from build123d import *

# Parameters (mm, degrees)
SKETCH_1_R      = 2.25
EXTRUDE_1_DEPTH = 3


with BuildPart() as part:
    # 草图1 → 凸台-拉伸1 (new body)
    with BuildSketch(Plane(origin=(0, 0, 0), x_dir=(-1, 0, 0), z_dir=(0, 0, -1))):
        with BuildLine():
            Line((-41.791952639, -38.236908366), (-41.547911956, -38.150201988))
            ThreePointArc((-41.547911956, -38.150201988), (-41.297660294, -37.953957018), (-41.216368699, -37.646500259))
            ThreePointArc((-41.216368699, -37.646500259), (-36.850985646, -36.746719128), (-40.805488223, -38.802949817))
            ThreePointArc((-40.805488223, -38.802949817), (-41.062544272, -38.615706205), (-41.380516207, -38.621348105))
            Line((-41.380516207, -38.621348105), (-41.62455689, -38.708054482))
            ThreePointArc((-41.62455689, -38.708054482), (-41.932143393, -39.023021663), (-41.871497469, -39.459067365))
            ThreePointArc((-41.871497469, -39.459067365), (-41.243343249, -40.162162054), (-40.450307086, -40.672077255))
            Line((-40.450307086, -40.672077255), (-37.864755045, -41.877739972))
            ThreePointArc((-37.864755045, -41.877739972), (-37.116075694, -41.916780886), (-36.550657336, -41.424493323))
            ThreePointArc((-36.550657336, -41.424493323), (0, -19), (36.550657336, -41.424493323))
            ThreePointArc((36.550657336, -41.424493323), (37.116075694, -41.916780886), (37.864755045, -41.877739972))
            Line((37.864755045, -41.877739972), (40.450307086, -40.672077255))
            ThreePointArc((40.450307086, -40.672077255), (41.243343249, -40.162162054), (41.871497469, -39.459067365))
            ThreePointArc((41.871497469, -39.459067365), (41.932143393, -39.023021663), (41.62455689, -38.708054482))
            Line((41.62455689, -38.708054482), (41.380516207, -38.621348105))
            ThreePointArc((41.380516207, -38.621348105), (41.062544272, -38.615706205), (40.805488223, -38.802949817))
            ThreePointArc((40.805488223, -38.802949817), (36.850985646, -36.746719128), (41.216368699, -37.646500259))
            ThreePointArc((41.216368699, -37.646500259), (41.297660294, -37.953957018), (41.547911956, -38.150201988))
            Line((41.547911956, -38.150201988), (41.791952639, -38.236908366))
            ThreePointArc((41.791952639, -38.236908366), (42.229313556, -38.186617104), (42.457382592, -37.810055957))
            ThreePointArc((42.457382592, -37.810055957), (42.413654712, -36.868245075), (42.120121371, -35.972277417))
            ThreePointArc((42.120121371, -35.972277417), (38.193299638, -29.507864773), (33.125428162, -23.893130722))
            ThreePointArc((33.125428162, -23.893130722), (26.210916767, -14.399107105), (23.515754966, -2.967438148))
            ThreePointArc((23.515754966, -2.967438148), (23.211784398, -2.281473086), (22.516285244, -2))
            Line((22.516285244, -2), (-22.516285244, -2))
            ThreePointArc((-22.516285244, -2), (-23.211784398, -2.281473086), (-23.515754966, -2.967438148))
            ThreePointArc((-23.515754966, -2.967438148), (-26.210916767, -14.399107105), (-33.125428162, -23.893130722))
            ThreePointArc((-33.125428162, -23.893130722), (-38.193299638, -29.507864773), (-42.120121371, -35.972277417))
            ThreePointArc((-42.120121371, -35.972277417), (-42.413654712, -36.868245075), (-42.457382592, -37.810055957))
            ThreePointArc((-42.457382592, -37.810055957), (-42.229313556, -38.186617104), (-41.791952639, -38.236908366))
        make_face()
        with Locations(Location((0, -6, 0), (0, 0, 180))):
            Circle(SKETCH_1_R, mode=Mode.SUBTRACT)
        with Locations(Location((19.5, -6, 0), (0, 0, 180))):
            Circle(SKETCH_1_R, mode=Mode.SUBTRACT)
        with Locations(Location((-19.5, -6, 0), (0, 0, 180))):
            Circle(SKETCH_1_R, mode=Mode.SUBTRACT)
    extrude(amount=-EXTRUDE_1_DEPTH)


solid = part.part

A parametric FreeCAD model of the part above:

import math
import FreeCAD as App
import Part
import Sketcher
from FreeCAD import Vector
Q = App.Units.Quantity

doc = App.newDocument("Part")
body = doc.addObject("PartDesign::Body", "Body")

sketch1 = doc.addObject("Sketcher::SketchObject", "Sketch")
body.addObject(sketch1)
sketch1.AttachmentSupport = (doc.XY_Plane, [""])
sketch1.MapMode = "FlatFace"
sketch1.addGeometry(Part.LineSegment(Vector(41.791953, -38.236908, 0), Vector(41.547912, -38.150202, 0)), False)
sketch1.addGeometry(Part.ArcOfCircle(Part.Circle(Vector(41.715308, -37.679056, 0), Vector(0, 0, 1), 0.5), math.radians(176.26676), math.radians(250.440141)), False)
sketch1.addGeometry(Part.ArcOfCircle(Part.Circle(Vector(38.971143, -37.5, 0), Vector(0, 0, 1), 2.25), math.radians(-3.733239), math.radians(324.61352)), False)
sketch1.addGeometry(Part.ArcOfCircle(Part.Circle(Vector(41.21312, -39.092494, 0), Vector(0, 0, 1), 0.5), math.radians(70.44014), math.radians(144.61352)), False)
sketch1.addGeometry(Part.LineSegment(Vector(41.380516, -38.621348, 0), Vector(41.624557, -38.708054, 0)), False)
sketch1.addGeometry(Part.ArcOfCircle(Part.Circle(Vector(41.457161, -39.179201, 0), Vector(0, 0, 1), 0.5), math.radians(-34.037372), math.radians(70.44014)), False)
sketch1.addGeometry(Part.ArcOfCircle(Part.Circle(Vector(38.971143, -37.5, 0), Vector(0, 0, 1), 3.5), math.radians(-65), math.radians(-34.037372)), False)
sketch1.addGeometry(Part.LineSegment(Vector(40.450307, -40.672077, 0), Vector(37.864755, -41.87774, 0)), False)
sketch1.addGeometry(Part.ArcOfCircle(Part.Circle(Vector(37.442137, -40.971432, 0), Vector(0, 0, 1), 1), math.radians(-153.059746), math.radians(-65)), False)
sketch1.addGeometry(Part.ArcOfCircle(Part.Circle(Vector(0, -60, 0), Vector(0, 0, 1), 41), math.radians(26.940254), math.radians(153.059746)), False)
sketch1.addGeometry(Part.ArcOfCircle(Part.Circle(Vector(-37.442137, -40.971432, 0), Vector(0, 0, 1), 1), math.radians(-115), math.radians(-26.940254)), False)
sketch1.addGeometry(Part.LineSegment(Vector(-37.864755, -41.87774, 0), Vector(-40.450307, -40.672077, 0)), False)
sketch1.addGeometry(Part.ArcOfCircle(Part.Circle(Vector(-38.971143, -37.5, 0), Vector(0, 0, 1), 3.5), math.radians(-145.962628), math.radians(-115)), False)
sketch1.addGeometry(Part.ArcOfCircle(Part.Circle(Vector(-41.457161, -39.179201, 0), Vector(0, 0, 1), 0.5), math.radians(109.55986), math.radians(214.037372)), False)
sketch1.addGeometry(Part.LineSegment(Vector(-41.624557, -38.708054, 0), Vector(-41.380516, -38.621348, 0)), False)
sketch1.addGeometry(Part.ArcOfCircle(Part.Circle(Vector(-41.21312, -39.092494, 0), Vector(0, 0, 1), 0.5), math.radians(35.38648), math.radians(109.55986)), False)
sketch1.addGeometry(Part.ArcOfCircle(Part.Circle(Vector(-38.971143, -37.5, 0), Vector(0, 0, 1), 2.25), math.radians(-144.61352), math.radians(183.733239)), False)
sketch1.addGeometry(Part.ArcOfCircle(Part.Circle(Vector(-41.715308, -37.679056, 0), Vector(0, 0, 1), 0.5), math.radians(-70.440141), math.radians(3.73324)), False)
sketch1.addGeometry(Part.LineSegment(Vector(-41.547912, -38.150202, 0), Vector(-41.791953, -38.236908, 0)), False)
sketch1.addGeometry(Part.ArcOfCircle(Part.Circle(Vector(-41.959348, -37.765762, 0), Vector(0, 0, 1), 0.5), math.radians(-174.917653), math.radians(-70.44014)), False)
sketch1.addGeometry(Part.ArcOfCircle(Part.Circle(Vector(-38.971143, -37.5, 0), Vector(0, 0, 1), 3.5), math.radians(154.119719), math.radians(185.082347)), False)
sketch1.addGeometry(Part.ArcOfCircle(Part.Circle(Vector(-5.940591, -53.524728, 0), Vector(0, 0, 1), 40.212522), math.radians(132.53412), math.radians(154.119719)), False)
sketch1.addGeometry(Part.ArcOfCircle(Part.Circle(Vector(-53.210784, -2, 0), Vector(0, 0, 1), 29.710784), math.radians(-47.46588), math.radians(-1.865987)), False)
sketch1.addGeometry(Part.ArcOfCircle(Part.Circle(Vector(-22.516285, -3, 0), Vector(0, 0, 1), 1), math.radians(90), math.radians(178.134013)), False)
sketch1.addGeometry(Part.LineSegment(Vector(-22.516285, -2, 0), Vector(22.516285, -2, 0)), False)
sketch1.addGeometry(Part.ArcOfCircle(Part.Circle(Vector(22.516285, -3, 0), Vector(0, 0, 1), 1), math.radians(1.865987), math.radians(90)), False)
sketch1.addGeometry(Part.ArcOfCircle(Part.Circle(Vector(53.210784, -2, 0), Vector(0, 0, 1), 29.710784), math.radians(-178.134013), math.radians(-132.53412)), False)
sketch1.addGeometry(Part.ArcOfCircle(Part.Circle(Vector(5.940591, -53.524728, 0), Vector(0, 0, 1), 40.212522), math.radians(25.880281), math.radians(47.46588)), False)
sketch1.addGeometry(Part.ArcOfCircle(Part.Circle(Vector(38.971143, -37.5, 0), Vector(0, 0, 1), 3.5), math.radians(-5.082347), math.radians(25.880281)), False)
sketch1.addGeometry(Part.ArcOfCircle(Part.Circle(Vector(41.959348, -37.765762, 0), Vector(0, 0, 1), 0.5), math.radians(-109.55986), math.radians(-5.082347)), False)
sketch1.addGeometry(Part.Circle(Vector(19.5, -6, 0), Vector(0, 0, 1), 2.25), False)
sketch1.addGeometry(Part.Circle(Vector(0, -6, 0), Vector(0, 0, 1), 2.25), False)
sketch1.addGeometry(Part.Circle(Vector(-19.5, -6, 0), Vector(0, 0, 1), 2.25), False)
sketch1.addConstraint(Sketcher.Constraint("Coincident", 0, 2, 1, 2))
sketch1.addConstraint(Sketcher.Constraint("Coincident", 1, 1, 2, 1))
sketch1.addConstraint(Sketcher.Constraint("Coincident", 2, 2, 3, 2))
sketch1.addConstraint(Sketcher.Constraint("Coincident", 3, 1, 4, 1))
sketch1.addConstraint(Sketcher.Constraint("Coincident", 4, 2, 5, 2))
sketch1.addConstraint(Sketcher.Constraint("Coincident", 5, 1, 6, 2))
sketch1.addConstraint(Sketcher.Constraint("Coincident", 6, 1, 7, 1))
sketch1.addConstraint(Sketcher.Constraint("Coincident", 7, 2, 8, 2))
sketch1.addConstraint(Sketcher.Constraint("Coincident", 8, 1, 9, 1))
sketch1.addConstraint(Sketcher.Constraint("Coincident", 9, 2, 10, 2))
sketch1.addConstraint(Sketcher.Constraint("Coincident", 10, 1, 11, 1))
sketch1.addConstraint(Sketcher.Constraint("Coincident", 11, 2, 12, 2))
sketch1.addConstraint(Sketcher.Constraint("Coincident", 12, 1, 13, 2))
sketch1.addConstraint(Sketcher.Constraint("Coincident", 13, 1, 14, 1))
sketch1.addConstraint(Sketcher.Constraint("Coincident", 14, 2, 15, 2))
sketch1.addConstraint(Sketcher.Constraint("Coincident", 15, 1, 16, 1))
sketch1.addConstraint(Sketcher.Constraint("Coincident", 16, 2, 17, 2))
sketch1.addConstraint(Sketcher.Constraint("Coincident", 17, 1, 18, 1))
sketch1.addConstraint(Sketcher.Constraint("Coincident", 18, 2, 19, 2))
sketch1.addConstraint(Sketcher.Constraint("Coincident", 19, 1, 20, 2))
sketch1.addConstraint(Sketcher.Constraint("Coincident", 20, 1, 21, 2))
sketch1.addConstraint(Sketcher.Constraint("Coincident", 21, 1, 22, 1))
sketch1.addConstraint(Sketcher.Constraint("Coincident", 22, 2, 23, 2))
sketch1.addConstraint(Sketcher.Constraint("Coincident", 23, 1, 24, 1))
sketch1.addConstraint(Sketcher.Constraint("Coincident", 24, 2, 25, 2))
sketch1.addConstraint(Sketcher.Constraint("Coincident", 25, 1, 26, 1))
sketch1.addConstraint(Sketcher.Constraint("Coincident", 26, 2, 27, 2))
sketch1.addConstraint(Sketcher.Constraint("Coincident", 27, 1, 28, 2))
sketch1.addConstraint(Sketcher.Constraint("Coincident", 28, 1, 29, 2))
sketch1.addConstraint(Sketcher.Constraint("Coincident", 29, 1, 0, 1))
sketch1.addConstraint(Sketcher.Constraint("Horizontal", 24))
sketch1.addConstraint(Sketcher.Constraint("Coincident", 6, 3, 2, 3))
sketch1.addConstraint(Sketcher.Constraint("Coincident", 16, 3, 12, 3))
sketch1.addConstraint(Sketcher.Constraint("Coincident", 20, 3, 12, 3))
sketch1.addConstraint(Sketcher.Constraint("Coincident", 28, 3, 2, 3))
sketch1.addConstraint(Sketcher.Constraint("PointOnObject", 9, 3, -2))
sketch1.addConstraint(Sketcher.Constraint("PointOnObject", 31, 3, -2))
sketch1.addConstraint(Sketcher.Constraint("Radius", 8, Q("1 mm")))
sketch1.addConstraint(Sketcher.Constraint("Radius", 9, Q("41 mm")))
sketch1.addConstraint(Sketcher.Constraint("Radius", 10, Q("1 mm")))
sketch1.addConstraint(Sketcher.Constraint("Radius", 23, Q("1 mm")))
sketch1.addConstraint(Sketcher.Constraint("Radius", 25, Q("1 mm")))
sketch1.addConstraint(Sketcher.Constraint("Diameter", 30, Q("4.5 mm")))
sketch1.addConstraint(Sketcher.Constraint("Diameter", 31, Q("4.5 mm")))
sketch1.addConstraint(Sketcher.Constraint("Diameter", 32, Q("4.5 mm")))
sketch1.addConstraint(Sketcher.Constraint("Radius", 1, Q("0.5 mm")))
sketch1.addConstraint(Sketcher.Constraint("Radius", 3, Q("0.5 mm")))
sketch1.addConstraint(Sketcher.Constraint("Radius", 5, Q("0.5 mm")))
sketch1.addConstraint(Sketcher.Constraint("Radius", 6, Q("3.5 mm")))
sketch1.addConstraint(Sketcher.Constraint("Radius", 12, Q("3.5 mm")))
sketch1.addConstraint(Sketcher.Constraint("Radius", 13, Q("0.5 mm")))
sketch1.addConstraint(Sketcher.Constraint("Radius", 15, Q("0.5 mm")))
sketch1.addConstraint(Sketcher.Constraint("Radius", 17, Q("0.5 mm")))
sketch1.addConstraint(Sketcher.Constraint("Radius", 19, Q("0.5 mm")))
sketch1.addConstraint(Sketcher.Constraint("Radius", 20, Q("3.5 mm")))
sketch1.addConstraint(Sketcher.Constraint("Radius", 28, Q("3.5 mm")))
sketch1.addConstraint(Sketcher.Constraint("Radius", 29, Q("0.5 mm")))
sketch1.addConstraint(Sketcher.Constraint("Radius", 2, Q("2.25 mm")))
sketch1.addConstraint(Sketcher.Constraint("Radius", 16, Q("2.25 mm")))
sketch1.addConstraint(Sketcher.Constraint("DistanceY", 9, 3, -1, 1, Q("60 mm")))
sketch1.addConstraint(Sketcher.Constraint("DistanceY", 22, 3, -1, 1, Q("2 mm")))
sketch1.addConstraint(Sketcher.Constraint("DistanceY", 23, 3, -1, 1, Q("3 mm")))
sketch1.addConstraint(Sketcher.Constraint("DistanceY", 26, 3, -1, 1, Q("2 mm")))
sketch1.addConstraint(Sketcher.Constraint("DistanceY", 30, 3, -1, 1, Q("6 mm")))
sketch1.addConstraint(Sketcher.Constraint("DistanceY", 31, 3, -1, 1, Q("6 mm")))
sketch1.addConstraint(Sketcher.Constraint("DistanceY", 32, 3, -1, 1, Q("6 mm")))
sketch1.addConstraint(Sketcher.Constraint("DistanceY", 2, 3, -1, 1, Q("37.5 mm")))
sketch1.addConstraint(Sketcher.Constraint("DistanceY", 12, 3, -1, 1, Q("37.5 mm")))
sketch1.addConstraint(Sketcher.Constraint("DistanceX", -1, 1, 30, 3, Q("19.5 mm")))
sketch1.addConstraint(Sketcher.Constraint("DistanceX", 32, 3, -1, 1, Q("19.5 mm")))
sketch1.addConstraint(Sketcher.Constraint("Radius", 21, Q("40.212522 mm")))
sketch1.addConstraint(Sketcher.Constraint("Radius", 22, Q("29.710784 mm")))
sketch1.addConstraint(Sketcher.Constraint("Radius", 26, Q("29.710784 mm")))
sketch1.addConstraint(Sketcher.Constraint("Radius", 27, Q("40.212522 mm")))
sketch1.addConstraint(Sketcher.Constraint("DistanceY", 5, 3, 0, 2, Q("1.028999 mm")))
sketch1.addConstraint(Sketcher.Constraint("DistanceY", 9, 2, 15, 3, Q("2.331999 mm")))
sketch1.addConstraint(Sketcher.Constraint("DistanceX", 17, 3, 11, 2, Q("1.265001 mm")))
sketch1.addConstraint(Sketcher.Constraint("DistanceY", 13, 1, 17, 3, Q("1.028999 mm")))
sketch1.addConstraint(Sketcher.Constraint("DistanceY", 19, 1, 17, 3, Q("0.131 mm")))
sketch1.addConstraint(Sketcher.Constraint("DistanceY", 28, 1, 1, 3, Q("0.131 mm")))
sketch1.addConstraint(Sketcher.Constraint("DistanceY", 4, 2, 28, 1, Q("0.897999 mm")))
sketch1.addConstraint(Sketcher.Constraint("DistanceX", 24, 1, 24, 2, Q("45.03257 mm")))
sketch1.addConstraint(Sketcher.Constraint("DistanceY", 5, 3, -1, 1, Q("39.179201 mm")))
sketch1.addConstraint(Sketcher.Constraint("DistanceY", 13, 3, -1, 1, Q("39.179201 mm")))
sketch1.addConstraint(Sketcher.Constraint("DistanceY", 1, 1, -1, 1, Q("37.6465 mm")))
sketch1.addConstraint(Sketcher.Constraint("DistanceY", 16, 2, -1, 1, Q("37.6465 mm")))
sketch1.addConstraint(Sketcher.Constraint("DistanceY", 17, 1, -1, 1, Q("38.150202 mm")))
sketch1.addConstraint(Sketcher.Constraint("DistanceY", 2, 2, 3, 1, Q("0.181602 mm")))
sketch1.addConstraint(Sketcher.Constraint("DistanceY", 15, 1, 14, 2, Q("0.181602 mm")))
sketch1.addConstraint(Sketcher.Constraint("DistanceX", 24, 2, 26, 3, Q("30.694499 mm")))
sketch1.addConstraint(Sketcher.Constraint("Distance", 7, Q("2.852841 mm")))
sketch1.addConstraint(Sketcher.Constraint("Distance", 11, Q("2.852841 mm")))
sketch1.addConstraint(Sketcher.Constraint("DistanceX", -1, 1, 3, 3, Q("41.21312 mm")))
sketch1.addConstraint(Sketcher.Constraint("DistanceX", -1, 1, 5, 3, Q("41.457161 mm")))
sketch1.addConstraint(Sketcher.Constraint("DistanceX", 13, 3, -1, 1, Q("41.457161 mm")))
sketch1.addConstraint(Sketcher.Constraint("DistanceX", 15, 3, -1, 1, Q("41.21312 mm")))
sketch1.addConstraint(Sketcher.Constraint("DistanceX", 19, 3, -1, 1, Q("41.959348 mm")))
sketch1.addConstraint(Sketcher.Constraint("DistanceX", 21, 3, -1, 1, Q("5.940591 mm")))
sketch1.addConstraint(Sketcher.Constraint("DistanceX", -1, 1, 27, 3, Q("5.940591 mm")))
sketch1.addConstraint(Sketcher.Constraint("DistanceX", -1, 1, 29, 3, Q("41.959348 mm")))
sketch1.addConstraint(Sketcher.Constraint("DistanceX", -1, 1, 0, 2, Q("41.547912 mm")))
sketch1.addConstraint(Sketcher.Constraint("DistanceX", -1, 1, 2, 2, Q("40.805488 mm")))
sketch1.addConstraint(Sketcher.Constraint("DistanceY", 7, 2, -1, 1, Q("41.87774 mm")))
sketch1.addConstraint(Sketcher.Constraint("DistanceY", 10, 1, -1, 1, Q("41.87774 mm")))
sketch1.addConstraint(Sketcher.Constraint("DistanceY", 14, 2, -1, 1, Q("38.621348 mm")))
sketch1.addConstraint(Sketcher.Constraint("DistanceX", 17, 1, -1, 1, Q("41.547912 mm")))
sketch1.addConstraint(Sketcher.Constraint("DistanceY", 18, 2, -1, 1, Q("38.236908 mm")))
sketch1.addConstraint(Sketcher.Constraint("DistanceX", 20, 1, -1, 1, Q("42.120121 mm")))
sketch1.addConstraint(Sketcher.Constraint("DistanceX", 21, 1, -1, 1, Q("33.125428 mm")))
sketch1.addConstraint(Sketcher.Constraint("DistanceY", 22, 2, -1, 1, Q("2.967438 mm")))
sketch1.addConstraint(Sketcher.Constraint("DistanceY", 25, 1, -1, 1, Q("2.967438 mm")))
sketch1.addConstraint(Sketcher.Constraint("DistanceX", -1, 1, 26, 2, Q("33.125428 mm")))
sketch1.addConstraint(Sketcher.Constraint("DistanceX", -1, 1, 27, 1, Q("42.120121 mm")))
sketch1.addConstraint(Sketcher.Constraint("DistanceY", 29, 1, -1, 1, Q("38.236908 mm")))
sketch1.addConstraint(Sketcher.Constraint("DistanceY", 8, 3, 5, 3, Q("1.792232 mm")))
sketch1.addConstraint(Sketcher.Constraint("DistanceX", 4, 2, 5, 1, Q("0.246941 mm")))
sketch1.addConstraint(Sketcher.Constraint("DistanceX", 8, 1, 8, 3, Q("0.891479 mm")))
sketch1.addConstraint(Sketcher.Constraint("DistanceX", 19, 3, 12, 1, Q("0.087851 mm")))
pad1 = doc.addObject("PartDesign::Pad", "Pad")
body.addObject(pad1)
pad1.Profile = sketch1
pad1.Length = 3

doc.recompute()
